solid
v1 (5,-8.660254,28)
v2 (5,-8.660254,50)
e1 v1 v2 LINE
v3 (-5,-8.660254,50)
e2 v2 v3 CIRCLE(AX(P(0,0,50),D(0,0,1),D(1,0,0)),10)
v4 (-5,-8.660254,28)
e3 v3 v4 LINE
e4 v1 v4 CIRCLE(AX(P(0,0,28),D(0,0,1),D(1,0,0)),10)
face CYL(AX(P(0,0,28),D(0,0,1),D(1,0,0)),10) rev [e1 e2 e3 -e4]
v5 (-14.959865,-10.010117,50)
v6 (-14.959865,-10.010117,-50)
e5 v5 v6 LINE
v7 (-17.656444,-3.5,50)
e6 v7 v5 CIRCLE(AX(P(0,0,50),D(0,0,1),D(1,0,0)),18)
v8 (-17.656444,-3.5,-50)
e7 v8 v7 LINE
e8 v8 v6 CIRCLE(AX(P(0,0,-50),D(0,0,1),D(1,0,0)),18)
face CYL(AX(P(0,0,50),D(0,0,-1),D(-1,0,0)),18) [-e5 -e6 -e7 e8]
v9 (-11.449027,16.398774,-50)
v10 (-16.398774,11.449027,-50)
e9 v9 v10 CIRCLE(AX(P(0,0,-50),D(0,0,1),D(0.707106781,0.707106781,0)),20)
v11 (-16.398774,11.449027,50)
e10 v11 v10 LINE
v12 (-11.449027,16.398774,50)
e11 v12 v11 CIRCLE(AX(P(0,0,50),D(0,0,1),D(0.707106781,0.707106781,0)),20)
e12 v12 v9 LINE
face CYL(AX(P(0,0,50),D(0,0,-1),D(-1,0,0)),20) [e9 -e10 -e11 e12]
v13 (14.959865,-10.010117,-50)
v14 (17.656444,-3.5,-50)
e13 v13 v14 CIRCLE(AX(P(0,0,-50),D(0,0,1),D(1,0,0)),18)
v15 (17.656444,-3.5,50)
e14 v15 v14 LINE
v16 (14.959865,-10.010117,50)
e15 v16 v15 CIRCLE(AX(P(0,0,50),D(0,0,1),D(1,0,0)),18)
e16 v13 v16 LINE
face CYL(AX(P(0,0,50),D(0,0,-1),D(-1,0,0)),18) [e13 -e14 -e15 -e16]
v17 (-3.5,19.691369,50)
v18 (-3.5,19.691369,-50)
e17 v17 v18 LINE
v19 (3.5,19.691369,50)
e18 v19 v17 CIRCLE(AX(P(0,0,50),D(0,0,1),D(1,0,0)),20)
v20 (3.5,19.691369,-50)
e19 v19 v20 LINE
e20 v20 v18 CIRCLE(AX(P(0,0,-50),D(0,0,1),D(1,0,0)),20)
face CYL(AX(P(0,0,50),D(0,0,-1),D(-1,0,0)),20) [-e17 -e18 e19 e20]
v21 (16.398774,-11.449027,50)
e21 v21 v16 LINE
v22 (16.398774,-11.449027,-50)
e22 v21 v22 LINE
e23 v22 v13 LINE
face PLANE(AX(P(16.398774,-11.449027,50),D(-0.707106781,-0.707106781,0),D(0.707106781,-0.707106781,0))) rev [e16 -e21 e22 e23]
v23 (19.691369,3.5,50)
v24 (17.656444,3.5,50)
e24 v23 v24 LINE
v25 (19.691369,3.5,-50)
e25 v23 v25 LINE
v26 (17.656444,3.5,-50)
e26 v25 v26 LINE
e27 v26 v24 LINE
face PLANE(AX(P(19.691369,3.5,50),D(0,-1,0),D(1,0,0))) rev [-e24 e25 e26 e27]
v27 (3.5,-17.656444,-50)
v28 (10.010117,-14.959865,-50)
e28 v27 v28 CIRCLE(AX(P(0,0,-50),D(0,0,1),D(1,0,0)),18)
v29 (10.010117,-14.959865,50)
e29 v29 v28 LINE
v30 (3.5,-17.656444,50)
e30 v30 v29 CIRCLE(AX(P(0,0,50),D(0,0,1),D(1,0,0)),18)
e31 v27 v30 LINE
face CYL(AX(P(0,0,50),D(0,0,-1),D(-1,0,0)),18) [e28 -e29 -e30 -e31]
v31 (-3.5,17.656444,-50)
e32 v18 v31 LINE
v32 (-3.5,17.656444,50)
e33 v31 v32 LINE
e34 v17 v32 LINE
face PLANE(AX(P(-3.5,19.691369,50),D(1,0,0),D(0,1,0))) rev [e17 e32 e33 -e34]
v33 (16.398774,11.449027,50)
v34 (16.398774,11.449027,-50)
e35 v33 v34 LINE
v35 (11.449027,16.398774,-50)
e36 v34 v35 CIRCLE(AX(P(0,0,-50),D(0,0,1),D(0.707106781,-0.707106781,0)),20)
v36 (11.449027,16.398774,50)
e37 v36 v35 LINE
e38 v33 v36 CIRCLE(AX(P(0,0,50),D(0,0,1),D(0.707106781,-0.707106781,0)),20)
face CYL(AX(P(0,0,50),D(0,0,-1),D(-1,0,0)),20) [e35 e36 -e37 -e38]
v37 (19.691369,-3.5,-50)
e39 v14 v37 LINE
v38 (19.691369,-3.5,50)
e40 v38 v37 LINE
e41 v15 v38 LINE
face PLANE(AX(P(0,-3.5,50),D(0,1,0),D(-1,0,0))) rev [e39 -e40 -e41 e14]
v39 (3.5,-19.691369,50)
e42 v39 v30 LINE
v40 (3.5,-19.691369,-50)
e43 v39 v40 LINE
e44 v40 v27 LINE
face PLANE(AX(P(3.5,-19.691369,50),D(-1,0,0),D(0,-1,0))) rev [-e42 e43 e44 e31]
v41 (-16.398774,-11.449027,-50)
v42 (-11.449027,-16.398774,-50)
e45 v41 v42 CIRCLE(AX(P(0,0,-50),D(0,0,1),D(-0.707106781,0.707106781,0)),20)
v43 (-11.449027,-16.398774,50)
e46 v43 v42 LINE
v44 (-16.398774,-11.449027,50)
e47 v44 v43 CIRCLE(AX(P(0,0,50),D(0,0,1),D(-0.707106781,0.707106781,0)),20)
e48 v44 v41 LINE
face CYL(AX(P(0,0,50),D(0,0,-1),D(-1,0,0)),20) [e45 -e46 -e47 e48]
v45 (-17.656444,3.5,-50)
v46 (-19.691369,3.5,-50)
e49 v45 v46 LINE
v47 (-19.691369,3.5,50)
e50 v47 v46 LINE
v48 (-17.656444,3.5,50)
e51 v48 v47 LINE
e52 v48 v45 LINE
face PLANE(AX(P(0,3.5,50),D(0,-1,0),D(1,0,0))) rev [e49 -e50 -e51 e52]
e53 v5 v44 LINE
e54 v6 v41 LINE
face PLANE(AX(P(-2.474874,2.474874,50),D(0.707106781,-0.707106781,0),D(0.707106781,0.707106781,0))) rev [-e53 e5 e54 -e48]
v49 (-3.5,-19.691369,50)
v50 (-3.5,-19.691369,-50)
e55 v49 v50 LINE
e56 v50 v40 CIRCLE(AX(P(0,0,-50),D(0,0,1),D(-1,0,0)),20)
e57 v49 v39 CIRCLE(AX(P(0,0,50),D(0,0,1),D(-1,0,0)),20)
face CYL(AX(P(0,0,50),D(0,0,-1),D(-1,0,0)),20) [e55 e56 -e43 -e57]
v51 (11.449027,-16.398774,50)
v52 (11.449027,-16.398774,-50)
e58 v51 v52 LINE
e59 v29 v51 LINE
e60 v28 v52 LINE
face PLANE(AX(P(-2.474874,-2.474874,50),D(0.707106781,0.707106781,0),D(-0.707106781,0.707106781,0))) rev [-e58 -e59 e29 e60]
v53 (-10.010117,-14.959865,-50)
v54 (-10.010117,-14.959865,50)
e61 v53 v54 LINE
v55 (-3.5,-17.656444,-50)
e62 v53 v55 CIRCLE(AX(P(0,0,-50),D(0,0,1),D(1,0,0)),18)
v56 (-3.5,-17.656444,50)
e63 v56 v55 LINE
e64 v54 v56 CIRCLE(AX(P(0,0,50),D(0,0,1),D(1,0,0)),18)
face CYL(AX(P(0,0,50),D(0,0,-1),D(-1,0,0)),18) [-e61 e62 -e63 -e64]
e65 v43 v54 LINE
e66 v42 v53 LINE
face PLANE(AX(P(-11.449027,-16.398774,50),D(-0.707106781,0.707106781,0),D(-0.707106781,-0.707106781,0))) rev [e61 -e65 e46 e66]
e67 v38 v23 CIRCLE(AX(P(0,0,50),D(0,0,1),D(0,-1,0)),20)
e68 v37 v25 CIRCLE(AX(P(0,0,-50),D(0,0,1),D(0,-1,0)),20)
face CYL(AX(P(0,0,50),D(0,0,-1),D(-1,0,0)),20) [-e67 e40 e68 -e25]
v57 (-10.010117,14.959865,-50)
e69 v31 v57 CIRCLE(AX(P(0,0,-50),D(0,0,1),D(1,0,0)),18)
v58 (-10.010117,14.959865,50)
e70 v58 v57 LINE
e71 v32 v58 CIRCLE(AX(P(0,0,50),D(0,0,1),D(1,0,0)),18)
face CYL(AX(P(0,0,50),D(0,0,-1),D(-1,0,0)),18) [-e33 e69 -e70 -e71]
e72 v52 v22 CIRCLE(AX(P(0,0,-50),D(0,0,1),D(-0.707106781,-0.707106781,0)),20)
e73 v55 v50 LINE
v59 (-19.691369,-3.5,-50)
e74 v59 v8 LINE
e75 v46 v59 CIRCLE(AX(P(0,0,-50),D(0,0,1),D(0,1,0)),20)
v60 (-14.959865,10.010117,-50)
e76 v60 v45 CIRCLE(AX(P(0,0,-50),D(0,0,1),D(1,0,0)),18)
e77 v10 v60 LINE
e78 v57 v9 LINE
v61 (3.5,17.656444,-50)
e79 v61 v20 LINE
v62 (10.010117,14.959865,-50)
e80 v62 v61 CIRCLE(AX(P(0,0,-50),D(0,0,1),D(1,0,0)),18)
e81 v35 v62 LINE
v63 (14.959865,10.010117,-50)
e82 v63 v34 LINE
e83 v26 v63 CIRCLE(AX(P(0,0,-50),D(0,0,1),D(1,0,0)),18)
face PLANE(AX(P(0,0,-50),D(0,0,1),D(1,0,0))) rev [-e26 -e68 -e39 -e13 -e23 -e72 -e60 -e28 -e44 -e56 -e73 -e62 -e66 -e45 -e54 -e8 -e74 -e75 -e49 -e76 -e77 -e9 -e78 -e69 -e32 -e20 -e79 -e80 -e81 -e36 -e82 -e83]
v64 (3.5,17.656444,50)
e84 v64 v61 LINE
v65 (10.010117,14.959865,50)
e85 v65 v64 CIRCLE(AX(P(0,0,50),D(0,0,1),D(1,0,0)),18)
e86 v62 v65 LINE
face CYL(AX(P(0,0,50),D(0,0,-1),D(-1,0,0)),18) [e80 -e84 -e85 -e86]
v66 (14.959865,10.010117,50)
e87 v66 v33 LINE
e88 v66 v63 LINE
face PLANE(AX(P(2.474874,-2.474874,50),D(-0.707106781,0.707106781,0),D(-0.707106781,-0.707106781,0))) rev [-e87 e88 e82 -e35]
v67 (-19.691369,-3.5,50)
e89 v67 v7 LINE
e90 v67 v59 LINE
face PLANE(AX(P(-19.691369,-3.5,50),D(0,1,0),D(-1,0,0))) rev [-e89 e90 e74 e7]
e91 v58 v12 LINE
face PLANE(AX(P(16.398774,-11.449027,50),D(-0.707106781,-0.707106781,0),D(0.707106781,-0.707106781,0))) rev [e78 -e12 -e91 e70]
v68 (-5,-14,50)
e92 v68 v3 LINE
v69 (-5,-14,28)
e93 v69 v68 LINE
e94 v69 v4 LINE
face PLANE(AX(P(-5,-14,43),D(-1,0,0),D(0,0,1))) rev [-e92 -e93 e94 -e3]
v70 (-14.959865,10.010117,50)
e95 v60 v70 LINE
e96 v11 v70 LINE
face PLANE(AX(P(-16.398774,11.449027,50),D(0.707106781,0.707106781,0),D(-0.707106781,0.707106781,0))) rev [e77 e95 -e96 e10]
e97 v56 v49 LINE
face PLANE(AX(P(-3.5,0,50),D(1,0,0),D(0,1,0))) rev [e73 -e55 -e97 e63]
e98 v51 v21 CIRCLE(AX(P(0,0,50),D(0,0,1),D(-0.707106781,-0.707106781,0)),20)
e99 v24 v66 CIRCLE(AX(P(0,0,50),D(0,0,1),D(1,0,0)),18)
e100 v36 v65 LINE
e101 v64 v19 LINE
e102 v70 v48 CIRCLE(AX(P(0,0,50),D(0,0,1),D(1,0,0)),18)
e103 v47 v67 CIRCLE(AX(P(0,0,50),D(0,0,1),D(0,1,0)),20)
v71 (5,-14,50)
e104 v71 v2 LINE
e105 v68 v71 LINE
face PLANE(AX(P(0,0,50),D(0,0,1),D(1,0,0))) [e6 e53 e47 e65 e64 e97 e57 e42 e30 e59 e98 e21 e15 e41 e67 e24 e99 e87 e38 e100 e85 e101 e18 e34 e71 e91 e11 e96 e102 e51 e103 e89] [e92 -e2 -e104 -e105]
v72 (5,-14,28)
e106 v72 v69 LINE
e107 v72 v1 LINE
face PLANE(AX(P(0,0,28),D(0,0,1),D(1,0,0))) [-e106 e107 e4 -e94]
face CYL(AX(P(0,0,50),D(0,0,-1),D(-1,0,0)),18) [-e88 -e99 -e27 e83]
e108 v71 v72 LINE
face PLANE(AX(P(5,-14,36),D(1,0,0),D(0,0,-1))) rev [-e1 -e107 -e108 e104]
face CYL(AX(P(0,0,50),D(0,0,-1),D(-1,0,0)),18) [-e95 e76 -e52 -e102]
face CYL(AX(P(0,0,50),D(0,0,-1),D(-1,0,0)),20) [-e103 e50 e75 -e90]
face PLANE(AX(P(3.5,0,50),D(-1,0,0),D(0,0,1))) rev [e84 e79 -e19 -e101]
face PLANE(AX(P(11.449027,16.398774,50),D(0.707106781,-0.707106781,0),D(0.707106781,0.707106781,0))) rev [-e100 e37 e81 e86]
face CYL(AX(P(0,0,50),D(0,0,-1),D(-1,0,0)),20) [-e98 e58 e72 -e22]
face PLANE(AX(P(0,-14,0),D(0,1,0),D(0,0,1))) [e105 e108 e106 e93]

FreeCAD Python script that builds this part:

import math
import FreeCAD as App
import Part
import Sketcher

V = App.Vector
Q = App.Units.Quantity

doc = App.newDocument("Part")
body = doc.addObject("PartDesign::Body", "Body")

sketch1 = body.newObject("Sketcher::SketchObject", "Sketch")
sketch1.AttachmentSupport = (doc.getObject("XY_Plane"), [""])
sketch1.MapMode = "FlatFace"
sketch1.addGeometry(Part.Circle(V(0, 0, 0), V(0, 0, 1), 18), False)
sketch1.addConstraint([
    Sketcher.Constraint("Coincident", 0, 3, -1, 1),
    Sketcher.Constraint("Diameter", 0, Q("36 mm")),
])
pad1 = body.newObject("PartDesign::Pad", "Pad")
pad1.Profile = sketch1
pad1.Length = 100
pad1.Midplane = True

sketch2 = body.newObject("Sketcher::SketchObject", "Sketch001")
sketch2.AttachmentSupport = (doc.getObject("XY_Plane"), [""])
sketch2.MapMode = "FlatFace"
sketch2.addGeometry([
    Part.LineSegment(V(-4, 20, 0), V(-4, 0, 0)),
    Part.LineSegment(V(-4, 0, 0), V(4, 0, 0)),
    Part.LineSegment(V(4, 0, 0), V(4, 20, 0)),
    Part.ArcOfCircle(Part.Circle(V(0, 0, 0), V(0, 0, 1), 20), math.radians(80), math.radians(100)),
], False)
sketch2.addConstraint([
    Sketcher.Constraint("Coincident", 0, 2, 1, 1),
    Sketcher.Constraint("Coincident", 1, 2, 2, 1),
    Sketcher.Constraint("Coincident", 2, 2, 3, 1),
    Sketcher.Constraint("Coincident", 3, 2, 0, 1),
    Sketcher.Constraint("Vertical", 0),
    Sketcher.Constraint("Horizontal", 1),
    Sketcher.Constraint("Vertical", 2),
    Sketcher.Constraint("Coincident", 3, 3, -1, 1),
    Sketcher.Constraint("Symmetric", 0, 2, 1, 2, -1, 1),
    Sketcher.Constraint("Radius", 3, Q("20 mm")),
    Sketcher.Constraint("DistanceX", 1, 1, 1, 2, Q("7 mm")),
])
pad2 = body.newObject("PartDesign::Pad", "Pad001")
pad2.Profile = sketch2
pad2.Length = 100
pad2.Midplane = True
doc.recompute()

polarpattern = body.newObject("PartDesign::PolarPattern", "PolarPattern")
polarpattern.Originals = [pad2]
polarpattern.Axis = (doc.getObject("Z_Axis"), [""])
polarpattern.Angle = 360
polarpattern.Occurrences = 8
body.Tip = polarpattern

sketch3 = body.newObject("Sketcher::SketchObject", "Sketch002")
sketch3.AttachmentSupport = (doc.getObject("XY_Plane"), [""])
sketch3.MapMode = "FlatFace"
sketch3.AttachmentOffset = App.Placement(V(0, 0, 50), App.Rotation())
sketch3.addGeometry(Part.Circle(V(0, 0, 0), V(0, 0, 1), 10), False)
sketch3.addConstraint([
    Sketcher.Constraint("Coincident", 0, 3, -1, 1),
    Sketcher.Constraint("Diameter", 0, Q("20 mm")),
])
pocket1 = body.newObject("PartDesign::Pocket", "Pocket")
pocket1.Profile = sketch3
pocket1.Length = 22

sketch4 = body.newObject("Sketcher::SketchObject", "Sketch003")
sketch4.AttachmentSupport = (doc.getObject("XZ_Plane"), [""])
sketch4.MapMode = "FlatFace"
sketch4.addGeometry([
    Part.LineSegment(V(5, 50, 0), V(5, 28, 0)),
    Part.LineSegment(V(5, 28, 0), V(-5, 28, 0)),
    Part.LineSegment(V(-5, 28, 0), V(-5, 50, 0)),
    Part.LineSegment(V(-5, 50, 0), V(5, 50, 0)),
], False)
sketch4.addConstraint([
    Sketcher.Constraint("Coincident", 0, 2, 1, 1),
    Sketcher.Constraint("Coincident", 1, 2, 2, 1),
    Sketcher.Constraint("Coincident", 2, 2, 3, 1),
    Sketcher.Constraint("Coincident", 3, 2, 0, 1),
    Sketcher.Constraint("Vertical", 0),
    Sketcher.Constraint("Horizontal", 1),
    Sketcher.Constraint("Vertical", 2),
    Sketcher.Constraint("Horizontal", 3),
    Sketcher.Constraint("DistanceX", 1, 2, 1, 1, Q("10 mm")),
    Sketcher.Constraint("DistanceY", 0, 2, 0, 1, Q("22 mm")),
    Sketcher.Constraint("DistanceX", -1, 1, 0, 2, Q("5 mm")),
    Sketcher.Constraint("DistanceY", -1, 1, 0, 2, Q("28 mm")),
])
pocket2 = body.newObject("PartDesign::Pocket", "Pocket001")
pocket2.Profile = sketch4
pocket2.Length = 14
pocket2.Reversed = True

doc.recompute()
